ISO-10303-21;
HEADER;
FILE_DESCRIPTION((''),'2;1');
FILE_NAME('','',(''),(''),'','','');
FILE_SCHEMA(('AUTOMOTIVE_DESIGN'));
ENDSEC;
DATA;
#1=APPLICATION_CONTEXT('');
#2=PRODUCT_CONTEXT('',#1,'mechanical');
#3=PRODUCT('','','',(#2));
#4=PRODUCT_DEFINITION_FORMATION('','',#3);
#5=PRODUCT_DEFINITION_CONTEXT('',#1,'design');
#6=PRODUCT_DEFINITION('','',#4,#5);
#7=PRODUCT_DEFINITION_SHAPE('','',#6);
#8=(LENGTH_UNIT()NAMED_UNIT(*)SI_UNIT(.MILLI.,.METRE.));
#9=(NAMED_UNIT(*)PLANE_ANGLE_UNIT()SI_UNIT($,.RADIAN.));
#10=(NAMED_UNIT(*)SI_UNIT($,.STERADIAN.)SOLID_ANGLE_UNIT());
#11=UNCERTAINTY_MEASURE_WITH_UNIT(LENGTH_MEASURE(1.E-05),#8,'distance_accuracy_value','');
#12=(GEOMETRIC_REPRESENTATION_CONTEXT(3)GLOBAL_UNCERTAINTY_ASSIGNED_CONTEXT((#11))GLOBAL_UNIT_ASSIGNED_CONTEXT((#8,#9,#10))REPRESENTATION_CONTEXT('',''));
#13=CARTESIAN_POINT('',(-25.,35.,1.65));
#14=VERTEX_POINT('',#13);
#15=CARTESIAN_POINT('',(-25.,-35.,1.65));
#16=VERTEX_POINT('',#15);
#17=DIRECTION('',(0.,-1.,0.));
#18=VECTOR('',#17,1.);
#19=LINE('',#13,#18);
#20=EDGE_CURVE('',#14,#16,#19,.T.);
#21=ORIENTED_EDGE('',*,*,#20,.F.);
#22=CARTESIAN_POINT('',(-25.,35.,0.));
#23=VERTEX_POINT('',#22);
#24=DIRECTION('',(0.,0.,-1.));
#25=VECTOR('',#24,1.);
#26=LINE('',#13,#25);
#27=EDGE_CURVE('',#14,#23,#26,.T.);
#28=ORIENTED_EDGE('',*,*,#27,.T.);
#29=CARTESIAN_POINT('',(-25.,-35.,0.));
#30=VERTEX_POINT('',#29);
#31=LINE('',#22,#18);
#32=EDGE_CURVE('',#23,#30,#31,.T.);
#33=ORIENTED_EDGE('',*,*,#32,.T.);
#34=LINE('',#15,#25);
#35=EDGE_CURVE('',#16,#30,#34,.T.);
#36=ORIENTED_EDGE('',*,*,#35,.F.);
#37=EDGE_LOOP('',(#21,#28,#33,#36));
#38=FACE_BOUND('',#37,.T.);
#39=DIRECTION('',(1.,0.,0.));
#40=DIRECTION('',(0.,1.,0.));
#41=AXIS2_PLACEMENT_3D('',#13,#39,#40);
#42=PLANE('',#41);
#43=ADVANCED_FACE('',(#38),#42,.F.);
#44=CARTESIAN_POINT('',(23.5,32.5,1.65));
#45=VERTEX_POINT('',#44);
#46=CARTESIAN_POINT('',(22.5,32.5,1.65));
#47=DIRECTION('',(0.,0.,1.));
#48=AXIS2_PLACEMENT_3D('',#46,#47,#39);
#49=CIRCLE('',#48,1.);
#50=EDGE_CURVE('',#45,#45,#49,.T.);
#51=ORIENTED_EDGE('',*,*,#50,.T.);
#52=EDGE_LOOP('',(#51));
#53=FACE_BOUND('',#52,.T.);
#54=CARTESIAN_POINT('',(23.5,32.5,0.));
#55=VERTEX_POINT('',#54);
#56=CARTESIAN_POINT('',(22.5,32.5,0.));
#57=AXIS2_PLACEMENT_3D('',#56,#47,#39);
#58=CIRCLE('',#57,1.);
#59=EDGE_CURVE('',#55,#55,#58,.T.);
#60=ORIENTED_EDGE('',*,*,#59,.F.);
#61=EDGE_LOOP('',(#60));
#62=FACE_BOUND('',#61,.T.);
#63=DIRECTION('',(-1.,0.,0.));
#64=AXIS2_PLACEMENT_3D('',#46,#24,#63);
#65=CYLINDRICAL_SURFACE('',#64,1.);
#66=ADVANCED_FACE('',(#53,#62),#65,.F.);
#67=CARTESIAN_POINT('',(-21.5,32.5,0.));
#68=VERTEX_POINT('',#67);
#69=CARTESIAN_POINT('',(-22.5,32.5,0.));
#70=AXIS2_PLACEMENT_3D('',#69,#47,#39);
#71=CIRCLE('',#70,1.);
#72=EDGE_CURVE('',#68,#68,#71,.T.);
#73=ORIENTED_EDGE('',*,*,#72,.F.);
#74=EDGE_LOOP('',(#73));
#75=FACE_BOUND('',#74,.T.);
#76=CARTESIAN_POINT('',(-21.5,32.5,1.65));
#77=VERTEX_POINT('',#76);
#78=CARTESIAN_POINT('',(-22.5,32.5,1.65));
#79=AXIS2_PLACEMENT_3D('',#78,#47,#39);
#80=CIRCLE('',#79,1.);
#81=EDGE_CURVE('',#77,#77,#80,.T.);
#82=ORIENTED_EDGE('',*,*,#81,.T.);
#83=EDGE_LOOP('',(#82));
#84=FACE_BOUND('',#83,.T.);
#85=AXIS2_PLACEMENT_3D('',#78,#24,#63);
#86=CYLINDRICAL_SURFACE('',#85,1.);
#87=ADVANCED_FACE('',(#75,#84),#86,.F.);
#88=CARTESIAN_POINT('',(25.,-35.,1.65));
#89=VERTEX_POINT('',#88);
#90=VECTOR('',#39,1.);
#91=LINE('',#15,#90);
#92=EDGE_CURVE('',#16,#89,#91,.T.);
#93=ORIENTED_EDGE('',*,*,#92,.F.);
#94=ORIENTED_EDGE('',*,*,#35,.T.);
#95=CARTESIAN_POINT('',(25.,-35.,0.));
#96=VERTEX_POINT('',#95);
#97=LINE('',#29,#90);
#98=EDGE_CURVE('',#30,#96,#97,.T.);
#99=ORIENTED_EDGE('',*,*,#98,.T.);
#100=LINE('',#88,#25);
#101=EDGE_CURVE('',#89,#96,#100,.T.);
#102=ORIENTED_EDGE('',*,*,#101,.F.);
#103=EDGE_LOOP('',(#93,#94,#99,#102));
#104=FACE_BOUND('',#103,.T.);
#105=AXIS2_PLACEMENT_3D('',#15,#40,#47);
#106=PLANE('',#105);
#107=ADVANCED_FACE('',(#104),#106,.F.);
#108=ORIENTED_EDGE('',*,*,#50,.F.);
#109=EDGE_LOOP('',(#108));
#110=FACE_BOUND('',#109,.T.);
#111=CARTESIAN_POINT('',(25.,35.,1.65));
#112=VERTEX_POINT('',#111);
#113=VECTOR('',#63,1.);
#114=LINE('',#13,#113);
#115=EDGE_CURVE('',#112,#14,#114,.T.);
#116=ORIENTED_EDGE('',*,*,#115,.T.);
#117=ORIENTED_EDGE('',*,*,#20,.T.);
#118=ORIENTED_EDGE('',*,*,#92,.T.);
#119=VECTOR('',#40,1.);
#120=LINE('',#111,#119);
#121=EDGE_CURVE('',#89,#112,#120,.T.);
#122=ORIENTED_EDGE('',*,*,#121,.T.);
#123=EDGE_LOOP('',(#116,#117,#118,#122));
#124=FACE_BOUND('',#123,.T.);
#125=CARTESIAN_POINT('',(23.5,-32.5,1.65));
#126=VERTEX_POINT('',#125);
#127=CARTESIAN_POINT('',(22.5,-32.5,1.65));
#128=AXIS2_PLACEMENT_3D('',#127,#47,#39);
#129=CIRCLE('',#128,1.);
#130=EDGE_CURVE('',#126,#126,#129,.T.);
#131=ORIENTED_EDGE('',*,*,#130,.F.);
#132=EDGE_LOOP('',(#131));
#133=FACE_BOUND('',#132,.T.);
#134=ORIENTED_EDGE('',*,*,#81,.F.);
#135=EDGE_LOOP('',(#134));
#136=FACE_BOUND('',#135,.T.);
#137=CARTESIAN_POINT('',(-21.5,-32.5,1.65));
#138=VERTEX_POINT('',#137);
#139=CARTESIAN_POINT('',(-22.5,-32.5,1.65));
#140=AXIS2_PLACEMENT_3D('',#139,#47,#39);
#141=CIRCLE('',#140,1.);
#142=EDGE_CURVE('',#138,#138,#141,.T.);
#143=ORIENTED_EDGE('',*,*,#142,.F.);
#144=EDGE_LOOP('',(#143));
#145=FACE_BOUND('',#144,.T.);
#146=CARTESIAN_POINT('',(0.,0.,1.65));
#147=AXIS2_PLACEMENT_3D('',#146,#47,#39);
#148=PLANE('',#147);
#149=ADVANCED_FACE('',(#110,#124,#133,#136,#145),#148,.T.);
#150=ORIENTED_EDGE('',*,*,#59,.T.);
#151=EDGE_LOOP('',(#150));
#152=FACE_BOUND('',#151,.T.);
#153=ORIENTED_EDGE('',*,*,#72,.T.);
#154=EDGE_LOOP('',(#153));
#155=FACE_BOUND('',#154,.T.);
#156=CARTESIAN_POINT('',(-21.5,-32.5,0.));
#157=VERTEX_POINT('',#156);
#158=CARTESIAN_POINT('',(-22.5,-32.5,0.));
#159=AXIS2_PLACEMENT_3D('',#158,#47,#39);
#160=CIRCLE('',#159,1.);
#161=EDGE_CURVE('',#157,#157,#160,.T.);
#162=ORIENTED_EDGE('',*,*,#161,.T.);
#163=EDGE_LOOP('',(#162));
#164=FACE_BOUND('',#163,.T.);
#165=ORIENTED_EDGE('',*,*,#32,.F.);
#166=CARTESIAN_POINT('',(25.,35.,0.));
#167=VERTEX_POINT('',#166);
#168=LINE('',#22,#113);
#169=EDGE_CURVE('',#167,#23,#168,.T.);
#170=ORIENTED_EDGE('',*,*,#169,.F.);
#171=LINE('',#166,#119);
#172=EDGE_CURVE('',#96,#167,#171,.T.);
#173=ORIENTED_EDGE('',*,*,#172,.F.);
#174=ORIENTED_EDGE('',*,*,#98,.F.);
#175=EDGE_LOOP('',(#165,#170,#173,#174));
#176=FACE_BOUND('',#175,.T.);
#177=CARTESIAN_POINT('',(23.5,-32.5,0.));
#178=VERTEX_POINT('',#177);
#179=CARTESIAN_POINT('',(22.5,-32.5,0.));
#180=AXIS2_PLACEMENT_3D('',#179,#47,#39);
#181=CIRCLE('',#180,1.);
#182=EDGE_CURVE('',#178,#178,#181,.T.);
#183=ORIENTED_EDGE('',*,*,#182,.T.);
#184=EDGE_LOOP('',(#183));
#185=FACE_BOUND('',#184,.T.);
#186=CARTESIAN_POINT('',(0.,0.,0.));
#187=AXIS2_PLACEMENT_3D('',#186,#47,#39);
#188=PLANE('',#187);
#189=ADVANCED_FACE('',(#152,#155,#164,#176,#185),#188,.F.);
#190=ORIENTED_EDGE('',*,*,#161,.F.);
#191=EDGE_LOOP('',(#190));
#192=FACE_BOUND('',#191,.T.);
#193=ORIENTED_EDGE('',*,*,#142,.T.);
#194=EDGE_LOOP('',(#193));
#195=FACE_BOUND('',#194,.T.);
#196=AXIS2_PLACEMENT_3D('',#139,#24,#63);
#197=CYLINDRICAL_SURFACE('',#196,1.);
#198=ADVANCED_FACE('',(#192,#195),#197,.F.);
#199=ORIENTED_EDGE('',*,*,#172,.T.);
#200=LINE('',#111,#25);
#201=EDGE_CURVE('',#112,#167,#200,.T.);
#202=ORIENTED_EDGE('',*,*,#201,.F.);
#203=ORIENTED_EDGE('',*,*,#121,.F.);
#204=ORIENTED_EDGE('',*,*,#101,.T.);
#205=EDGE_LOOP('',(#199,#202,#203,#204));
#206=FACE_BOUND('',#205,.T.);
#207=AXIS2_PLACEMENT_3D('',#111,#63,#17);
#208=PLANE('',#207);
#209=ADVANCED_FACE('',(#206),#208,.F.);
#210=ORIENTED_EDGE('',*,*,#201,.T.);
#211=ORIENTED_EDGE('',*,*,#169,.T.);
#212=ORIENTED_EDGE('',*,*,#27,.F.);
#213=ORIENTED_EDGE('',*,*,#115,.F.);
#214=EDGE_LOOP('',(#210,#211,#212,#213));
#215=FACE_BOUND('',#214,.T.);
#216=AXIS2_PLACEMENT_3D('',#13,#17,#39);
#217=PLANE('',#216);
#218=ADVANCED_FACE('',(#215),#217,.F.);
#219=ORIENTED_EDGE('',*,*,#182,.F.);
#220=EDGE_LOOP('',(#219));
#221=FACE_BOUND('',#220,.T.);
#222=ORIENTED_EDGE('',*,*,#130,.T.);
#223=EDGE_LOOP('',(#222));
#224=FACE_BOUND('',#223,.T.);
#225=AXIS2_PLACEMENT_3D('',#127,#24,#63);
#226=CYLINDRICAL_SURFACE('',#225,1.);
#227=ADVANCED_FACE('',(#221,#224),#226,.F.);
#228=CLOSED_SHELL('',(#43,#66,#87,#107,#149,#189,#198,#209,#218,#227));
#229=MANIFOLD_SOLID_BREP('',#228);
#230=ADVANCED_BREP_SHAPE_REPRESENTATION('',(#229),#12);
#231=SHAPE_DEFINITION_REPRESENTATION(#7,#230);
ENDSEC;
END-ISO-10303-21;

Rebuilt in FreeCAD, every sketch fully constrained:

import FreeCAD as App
import Part
import Sketcher
from FreeCAD import Vector
Q = App.Units.Quantity

doc = App.newDocument("Part")
body = doc.addObject("PartDesign::Body", "Body")

sketch1 = body.newObject("Sketcher::SketchObject", "Sketch")
sketch1.AttachmentSupport = (doc.getObject("XY_Plane"), [""])
sketch1.MapMode = "FlatFace"
sketch1.addGeometry(Part.LineSegment(Vector(-25, 35, 0), Vector(-25, -35, 0)), False)
sketch1.addGeometry(Part.LineSegment(Vector(-25, -35, 0), Vector(25, -35, 0)), False)
sketch1.addGeometry(Part.LineSegment(Vector(25, -35, 0), Vector(25, 35, 0)), False)
sketch1.addGeometry(Part.LineSegment(Vector(25, 35, 0), Vector(-25, 35, 0)), False)
sketch1.addGeometry(Part.Circle(Vector(-22.5, -32.5, 0), Vector(0, 0, 1), 1), False)
sketch1.addGeometry(Part.Circle(Vector(22.5, -32.5, 0), Vector(0, 0, 1), 1), False)
sketch1.addGeometry(Part.Circle(Vector(-22.5, 32.5, 0), Vector(0, 0, 1), 1), False)
sketch1.addGeometry(Part.Circle(Vector(22.5, 32.5, 0), Vector(0, 0, 1), 1), False)
sketch1.addConstraint(Sketcher.Constraint("Coincident", 0, 2, 1, 1))
sketch1.addConstraint(Sketcher.Constraint("Coincident", 1, 2, 2, 1))
sketch1.addConstraint(Sketcher.Constraint("Coincident", 2, 2, 3, 1))
sketch1.addConstraint(Sketcher.Constraint("Coincident", 3, 2, 0, 1))
sketch1.addConstraint(Sketcher.Constraint("Vertical", 0))
sketch1.addConstraint(Sketcher.Constraint("Horizontal", 1))
sketch1.addConstraint(Sketcher.Constraint("Vertical", 2))
sketch1.addConstraint(Sketcher.Constraint("Horizontal", 3))
sketch1.addConstraint(Sketcher.Constraint("Equal", 4, 5))
sketch1.addConstraint(Sketcher.Constraint("Equal", 5, 6))
sketch1.addConstraint(Sketcher.Constraint("Equal", 6, 7))
sketch1.addConstraint(Sketcher.Constraint("Symmetric", 5, 3, 6, 3, -1, 1))
sketch1.addConstraint(Sketcher.Constraint("Symmetric", 4, 3, 7, 3, -1, 1))
sketch1.addConstraint(Sketcher.Constraint("Symmetric", 0, 2, 2, 2, -1, 1))
sketch1.addConstraint(Sketcher.Constraint("Symmetric", 4, 3, 5, 3, -2))
sketch1.addConstraint(Sketcher.Constraint("Diameter", 4, Q("2 mm")))
sketch1.addConstraint(Sketcher.Constraint("DistanceX", 1, 1, 1, 2, Q("50 mm")))
sketch1.addConstraint(Sketcher.Constraint("DistanceY", 0, 2, 0, 1, Q("70 mm")))
sketch1.addConstraint(Sketcher.Constraint("DistanceX", 4, 3, 5, 3, Q("45 mm")))
sketch1.addConstraint(Sketcher.Constraint("DistanceY", 4, 3, 6, 3, Q("65 mm")))
pad1 = body.newObject("PartDesign::Pad", "Pad")
pad1.Profile = sketch1
pad1.Length = 1.65

doc.recompute()
